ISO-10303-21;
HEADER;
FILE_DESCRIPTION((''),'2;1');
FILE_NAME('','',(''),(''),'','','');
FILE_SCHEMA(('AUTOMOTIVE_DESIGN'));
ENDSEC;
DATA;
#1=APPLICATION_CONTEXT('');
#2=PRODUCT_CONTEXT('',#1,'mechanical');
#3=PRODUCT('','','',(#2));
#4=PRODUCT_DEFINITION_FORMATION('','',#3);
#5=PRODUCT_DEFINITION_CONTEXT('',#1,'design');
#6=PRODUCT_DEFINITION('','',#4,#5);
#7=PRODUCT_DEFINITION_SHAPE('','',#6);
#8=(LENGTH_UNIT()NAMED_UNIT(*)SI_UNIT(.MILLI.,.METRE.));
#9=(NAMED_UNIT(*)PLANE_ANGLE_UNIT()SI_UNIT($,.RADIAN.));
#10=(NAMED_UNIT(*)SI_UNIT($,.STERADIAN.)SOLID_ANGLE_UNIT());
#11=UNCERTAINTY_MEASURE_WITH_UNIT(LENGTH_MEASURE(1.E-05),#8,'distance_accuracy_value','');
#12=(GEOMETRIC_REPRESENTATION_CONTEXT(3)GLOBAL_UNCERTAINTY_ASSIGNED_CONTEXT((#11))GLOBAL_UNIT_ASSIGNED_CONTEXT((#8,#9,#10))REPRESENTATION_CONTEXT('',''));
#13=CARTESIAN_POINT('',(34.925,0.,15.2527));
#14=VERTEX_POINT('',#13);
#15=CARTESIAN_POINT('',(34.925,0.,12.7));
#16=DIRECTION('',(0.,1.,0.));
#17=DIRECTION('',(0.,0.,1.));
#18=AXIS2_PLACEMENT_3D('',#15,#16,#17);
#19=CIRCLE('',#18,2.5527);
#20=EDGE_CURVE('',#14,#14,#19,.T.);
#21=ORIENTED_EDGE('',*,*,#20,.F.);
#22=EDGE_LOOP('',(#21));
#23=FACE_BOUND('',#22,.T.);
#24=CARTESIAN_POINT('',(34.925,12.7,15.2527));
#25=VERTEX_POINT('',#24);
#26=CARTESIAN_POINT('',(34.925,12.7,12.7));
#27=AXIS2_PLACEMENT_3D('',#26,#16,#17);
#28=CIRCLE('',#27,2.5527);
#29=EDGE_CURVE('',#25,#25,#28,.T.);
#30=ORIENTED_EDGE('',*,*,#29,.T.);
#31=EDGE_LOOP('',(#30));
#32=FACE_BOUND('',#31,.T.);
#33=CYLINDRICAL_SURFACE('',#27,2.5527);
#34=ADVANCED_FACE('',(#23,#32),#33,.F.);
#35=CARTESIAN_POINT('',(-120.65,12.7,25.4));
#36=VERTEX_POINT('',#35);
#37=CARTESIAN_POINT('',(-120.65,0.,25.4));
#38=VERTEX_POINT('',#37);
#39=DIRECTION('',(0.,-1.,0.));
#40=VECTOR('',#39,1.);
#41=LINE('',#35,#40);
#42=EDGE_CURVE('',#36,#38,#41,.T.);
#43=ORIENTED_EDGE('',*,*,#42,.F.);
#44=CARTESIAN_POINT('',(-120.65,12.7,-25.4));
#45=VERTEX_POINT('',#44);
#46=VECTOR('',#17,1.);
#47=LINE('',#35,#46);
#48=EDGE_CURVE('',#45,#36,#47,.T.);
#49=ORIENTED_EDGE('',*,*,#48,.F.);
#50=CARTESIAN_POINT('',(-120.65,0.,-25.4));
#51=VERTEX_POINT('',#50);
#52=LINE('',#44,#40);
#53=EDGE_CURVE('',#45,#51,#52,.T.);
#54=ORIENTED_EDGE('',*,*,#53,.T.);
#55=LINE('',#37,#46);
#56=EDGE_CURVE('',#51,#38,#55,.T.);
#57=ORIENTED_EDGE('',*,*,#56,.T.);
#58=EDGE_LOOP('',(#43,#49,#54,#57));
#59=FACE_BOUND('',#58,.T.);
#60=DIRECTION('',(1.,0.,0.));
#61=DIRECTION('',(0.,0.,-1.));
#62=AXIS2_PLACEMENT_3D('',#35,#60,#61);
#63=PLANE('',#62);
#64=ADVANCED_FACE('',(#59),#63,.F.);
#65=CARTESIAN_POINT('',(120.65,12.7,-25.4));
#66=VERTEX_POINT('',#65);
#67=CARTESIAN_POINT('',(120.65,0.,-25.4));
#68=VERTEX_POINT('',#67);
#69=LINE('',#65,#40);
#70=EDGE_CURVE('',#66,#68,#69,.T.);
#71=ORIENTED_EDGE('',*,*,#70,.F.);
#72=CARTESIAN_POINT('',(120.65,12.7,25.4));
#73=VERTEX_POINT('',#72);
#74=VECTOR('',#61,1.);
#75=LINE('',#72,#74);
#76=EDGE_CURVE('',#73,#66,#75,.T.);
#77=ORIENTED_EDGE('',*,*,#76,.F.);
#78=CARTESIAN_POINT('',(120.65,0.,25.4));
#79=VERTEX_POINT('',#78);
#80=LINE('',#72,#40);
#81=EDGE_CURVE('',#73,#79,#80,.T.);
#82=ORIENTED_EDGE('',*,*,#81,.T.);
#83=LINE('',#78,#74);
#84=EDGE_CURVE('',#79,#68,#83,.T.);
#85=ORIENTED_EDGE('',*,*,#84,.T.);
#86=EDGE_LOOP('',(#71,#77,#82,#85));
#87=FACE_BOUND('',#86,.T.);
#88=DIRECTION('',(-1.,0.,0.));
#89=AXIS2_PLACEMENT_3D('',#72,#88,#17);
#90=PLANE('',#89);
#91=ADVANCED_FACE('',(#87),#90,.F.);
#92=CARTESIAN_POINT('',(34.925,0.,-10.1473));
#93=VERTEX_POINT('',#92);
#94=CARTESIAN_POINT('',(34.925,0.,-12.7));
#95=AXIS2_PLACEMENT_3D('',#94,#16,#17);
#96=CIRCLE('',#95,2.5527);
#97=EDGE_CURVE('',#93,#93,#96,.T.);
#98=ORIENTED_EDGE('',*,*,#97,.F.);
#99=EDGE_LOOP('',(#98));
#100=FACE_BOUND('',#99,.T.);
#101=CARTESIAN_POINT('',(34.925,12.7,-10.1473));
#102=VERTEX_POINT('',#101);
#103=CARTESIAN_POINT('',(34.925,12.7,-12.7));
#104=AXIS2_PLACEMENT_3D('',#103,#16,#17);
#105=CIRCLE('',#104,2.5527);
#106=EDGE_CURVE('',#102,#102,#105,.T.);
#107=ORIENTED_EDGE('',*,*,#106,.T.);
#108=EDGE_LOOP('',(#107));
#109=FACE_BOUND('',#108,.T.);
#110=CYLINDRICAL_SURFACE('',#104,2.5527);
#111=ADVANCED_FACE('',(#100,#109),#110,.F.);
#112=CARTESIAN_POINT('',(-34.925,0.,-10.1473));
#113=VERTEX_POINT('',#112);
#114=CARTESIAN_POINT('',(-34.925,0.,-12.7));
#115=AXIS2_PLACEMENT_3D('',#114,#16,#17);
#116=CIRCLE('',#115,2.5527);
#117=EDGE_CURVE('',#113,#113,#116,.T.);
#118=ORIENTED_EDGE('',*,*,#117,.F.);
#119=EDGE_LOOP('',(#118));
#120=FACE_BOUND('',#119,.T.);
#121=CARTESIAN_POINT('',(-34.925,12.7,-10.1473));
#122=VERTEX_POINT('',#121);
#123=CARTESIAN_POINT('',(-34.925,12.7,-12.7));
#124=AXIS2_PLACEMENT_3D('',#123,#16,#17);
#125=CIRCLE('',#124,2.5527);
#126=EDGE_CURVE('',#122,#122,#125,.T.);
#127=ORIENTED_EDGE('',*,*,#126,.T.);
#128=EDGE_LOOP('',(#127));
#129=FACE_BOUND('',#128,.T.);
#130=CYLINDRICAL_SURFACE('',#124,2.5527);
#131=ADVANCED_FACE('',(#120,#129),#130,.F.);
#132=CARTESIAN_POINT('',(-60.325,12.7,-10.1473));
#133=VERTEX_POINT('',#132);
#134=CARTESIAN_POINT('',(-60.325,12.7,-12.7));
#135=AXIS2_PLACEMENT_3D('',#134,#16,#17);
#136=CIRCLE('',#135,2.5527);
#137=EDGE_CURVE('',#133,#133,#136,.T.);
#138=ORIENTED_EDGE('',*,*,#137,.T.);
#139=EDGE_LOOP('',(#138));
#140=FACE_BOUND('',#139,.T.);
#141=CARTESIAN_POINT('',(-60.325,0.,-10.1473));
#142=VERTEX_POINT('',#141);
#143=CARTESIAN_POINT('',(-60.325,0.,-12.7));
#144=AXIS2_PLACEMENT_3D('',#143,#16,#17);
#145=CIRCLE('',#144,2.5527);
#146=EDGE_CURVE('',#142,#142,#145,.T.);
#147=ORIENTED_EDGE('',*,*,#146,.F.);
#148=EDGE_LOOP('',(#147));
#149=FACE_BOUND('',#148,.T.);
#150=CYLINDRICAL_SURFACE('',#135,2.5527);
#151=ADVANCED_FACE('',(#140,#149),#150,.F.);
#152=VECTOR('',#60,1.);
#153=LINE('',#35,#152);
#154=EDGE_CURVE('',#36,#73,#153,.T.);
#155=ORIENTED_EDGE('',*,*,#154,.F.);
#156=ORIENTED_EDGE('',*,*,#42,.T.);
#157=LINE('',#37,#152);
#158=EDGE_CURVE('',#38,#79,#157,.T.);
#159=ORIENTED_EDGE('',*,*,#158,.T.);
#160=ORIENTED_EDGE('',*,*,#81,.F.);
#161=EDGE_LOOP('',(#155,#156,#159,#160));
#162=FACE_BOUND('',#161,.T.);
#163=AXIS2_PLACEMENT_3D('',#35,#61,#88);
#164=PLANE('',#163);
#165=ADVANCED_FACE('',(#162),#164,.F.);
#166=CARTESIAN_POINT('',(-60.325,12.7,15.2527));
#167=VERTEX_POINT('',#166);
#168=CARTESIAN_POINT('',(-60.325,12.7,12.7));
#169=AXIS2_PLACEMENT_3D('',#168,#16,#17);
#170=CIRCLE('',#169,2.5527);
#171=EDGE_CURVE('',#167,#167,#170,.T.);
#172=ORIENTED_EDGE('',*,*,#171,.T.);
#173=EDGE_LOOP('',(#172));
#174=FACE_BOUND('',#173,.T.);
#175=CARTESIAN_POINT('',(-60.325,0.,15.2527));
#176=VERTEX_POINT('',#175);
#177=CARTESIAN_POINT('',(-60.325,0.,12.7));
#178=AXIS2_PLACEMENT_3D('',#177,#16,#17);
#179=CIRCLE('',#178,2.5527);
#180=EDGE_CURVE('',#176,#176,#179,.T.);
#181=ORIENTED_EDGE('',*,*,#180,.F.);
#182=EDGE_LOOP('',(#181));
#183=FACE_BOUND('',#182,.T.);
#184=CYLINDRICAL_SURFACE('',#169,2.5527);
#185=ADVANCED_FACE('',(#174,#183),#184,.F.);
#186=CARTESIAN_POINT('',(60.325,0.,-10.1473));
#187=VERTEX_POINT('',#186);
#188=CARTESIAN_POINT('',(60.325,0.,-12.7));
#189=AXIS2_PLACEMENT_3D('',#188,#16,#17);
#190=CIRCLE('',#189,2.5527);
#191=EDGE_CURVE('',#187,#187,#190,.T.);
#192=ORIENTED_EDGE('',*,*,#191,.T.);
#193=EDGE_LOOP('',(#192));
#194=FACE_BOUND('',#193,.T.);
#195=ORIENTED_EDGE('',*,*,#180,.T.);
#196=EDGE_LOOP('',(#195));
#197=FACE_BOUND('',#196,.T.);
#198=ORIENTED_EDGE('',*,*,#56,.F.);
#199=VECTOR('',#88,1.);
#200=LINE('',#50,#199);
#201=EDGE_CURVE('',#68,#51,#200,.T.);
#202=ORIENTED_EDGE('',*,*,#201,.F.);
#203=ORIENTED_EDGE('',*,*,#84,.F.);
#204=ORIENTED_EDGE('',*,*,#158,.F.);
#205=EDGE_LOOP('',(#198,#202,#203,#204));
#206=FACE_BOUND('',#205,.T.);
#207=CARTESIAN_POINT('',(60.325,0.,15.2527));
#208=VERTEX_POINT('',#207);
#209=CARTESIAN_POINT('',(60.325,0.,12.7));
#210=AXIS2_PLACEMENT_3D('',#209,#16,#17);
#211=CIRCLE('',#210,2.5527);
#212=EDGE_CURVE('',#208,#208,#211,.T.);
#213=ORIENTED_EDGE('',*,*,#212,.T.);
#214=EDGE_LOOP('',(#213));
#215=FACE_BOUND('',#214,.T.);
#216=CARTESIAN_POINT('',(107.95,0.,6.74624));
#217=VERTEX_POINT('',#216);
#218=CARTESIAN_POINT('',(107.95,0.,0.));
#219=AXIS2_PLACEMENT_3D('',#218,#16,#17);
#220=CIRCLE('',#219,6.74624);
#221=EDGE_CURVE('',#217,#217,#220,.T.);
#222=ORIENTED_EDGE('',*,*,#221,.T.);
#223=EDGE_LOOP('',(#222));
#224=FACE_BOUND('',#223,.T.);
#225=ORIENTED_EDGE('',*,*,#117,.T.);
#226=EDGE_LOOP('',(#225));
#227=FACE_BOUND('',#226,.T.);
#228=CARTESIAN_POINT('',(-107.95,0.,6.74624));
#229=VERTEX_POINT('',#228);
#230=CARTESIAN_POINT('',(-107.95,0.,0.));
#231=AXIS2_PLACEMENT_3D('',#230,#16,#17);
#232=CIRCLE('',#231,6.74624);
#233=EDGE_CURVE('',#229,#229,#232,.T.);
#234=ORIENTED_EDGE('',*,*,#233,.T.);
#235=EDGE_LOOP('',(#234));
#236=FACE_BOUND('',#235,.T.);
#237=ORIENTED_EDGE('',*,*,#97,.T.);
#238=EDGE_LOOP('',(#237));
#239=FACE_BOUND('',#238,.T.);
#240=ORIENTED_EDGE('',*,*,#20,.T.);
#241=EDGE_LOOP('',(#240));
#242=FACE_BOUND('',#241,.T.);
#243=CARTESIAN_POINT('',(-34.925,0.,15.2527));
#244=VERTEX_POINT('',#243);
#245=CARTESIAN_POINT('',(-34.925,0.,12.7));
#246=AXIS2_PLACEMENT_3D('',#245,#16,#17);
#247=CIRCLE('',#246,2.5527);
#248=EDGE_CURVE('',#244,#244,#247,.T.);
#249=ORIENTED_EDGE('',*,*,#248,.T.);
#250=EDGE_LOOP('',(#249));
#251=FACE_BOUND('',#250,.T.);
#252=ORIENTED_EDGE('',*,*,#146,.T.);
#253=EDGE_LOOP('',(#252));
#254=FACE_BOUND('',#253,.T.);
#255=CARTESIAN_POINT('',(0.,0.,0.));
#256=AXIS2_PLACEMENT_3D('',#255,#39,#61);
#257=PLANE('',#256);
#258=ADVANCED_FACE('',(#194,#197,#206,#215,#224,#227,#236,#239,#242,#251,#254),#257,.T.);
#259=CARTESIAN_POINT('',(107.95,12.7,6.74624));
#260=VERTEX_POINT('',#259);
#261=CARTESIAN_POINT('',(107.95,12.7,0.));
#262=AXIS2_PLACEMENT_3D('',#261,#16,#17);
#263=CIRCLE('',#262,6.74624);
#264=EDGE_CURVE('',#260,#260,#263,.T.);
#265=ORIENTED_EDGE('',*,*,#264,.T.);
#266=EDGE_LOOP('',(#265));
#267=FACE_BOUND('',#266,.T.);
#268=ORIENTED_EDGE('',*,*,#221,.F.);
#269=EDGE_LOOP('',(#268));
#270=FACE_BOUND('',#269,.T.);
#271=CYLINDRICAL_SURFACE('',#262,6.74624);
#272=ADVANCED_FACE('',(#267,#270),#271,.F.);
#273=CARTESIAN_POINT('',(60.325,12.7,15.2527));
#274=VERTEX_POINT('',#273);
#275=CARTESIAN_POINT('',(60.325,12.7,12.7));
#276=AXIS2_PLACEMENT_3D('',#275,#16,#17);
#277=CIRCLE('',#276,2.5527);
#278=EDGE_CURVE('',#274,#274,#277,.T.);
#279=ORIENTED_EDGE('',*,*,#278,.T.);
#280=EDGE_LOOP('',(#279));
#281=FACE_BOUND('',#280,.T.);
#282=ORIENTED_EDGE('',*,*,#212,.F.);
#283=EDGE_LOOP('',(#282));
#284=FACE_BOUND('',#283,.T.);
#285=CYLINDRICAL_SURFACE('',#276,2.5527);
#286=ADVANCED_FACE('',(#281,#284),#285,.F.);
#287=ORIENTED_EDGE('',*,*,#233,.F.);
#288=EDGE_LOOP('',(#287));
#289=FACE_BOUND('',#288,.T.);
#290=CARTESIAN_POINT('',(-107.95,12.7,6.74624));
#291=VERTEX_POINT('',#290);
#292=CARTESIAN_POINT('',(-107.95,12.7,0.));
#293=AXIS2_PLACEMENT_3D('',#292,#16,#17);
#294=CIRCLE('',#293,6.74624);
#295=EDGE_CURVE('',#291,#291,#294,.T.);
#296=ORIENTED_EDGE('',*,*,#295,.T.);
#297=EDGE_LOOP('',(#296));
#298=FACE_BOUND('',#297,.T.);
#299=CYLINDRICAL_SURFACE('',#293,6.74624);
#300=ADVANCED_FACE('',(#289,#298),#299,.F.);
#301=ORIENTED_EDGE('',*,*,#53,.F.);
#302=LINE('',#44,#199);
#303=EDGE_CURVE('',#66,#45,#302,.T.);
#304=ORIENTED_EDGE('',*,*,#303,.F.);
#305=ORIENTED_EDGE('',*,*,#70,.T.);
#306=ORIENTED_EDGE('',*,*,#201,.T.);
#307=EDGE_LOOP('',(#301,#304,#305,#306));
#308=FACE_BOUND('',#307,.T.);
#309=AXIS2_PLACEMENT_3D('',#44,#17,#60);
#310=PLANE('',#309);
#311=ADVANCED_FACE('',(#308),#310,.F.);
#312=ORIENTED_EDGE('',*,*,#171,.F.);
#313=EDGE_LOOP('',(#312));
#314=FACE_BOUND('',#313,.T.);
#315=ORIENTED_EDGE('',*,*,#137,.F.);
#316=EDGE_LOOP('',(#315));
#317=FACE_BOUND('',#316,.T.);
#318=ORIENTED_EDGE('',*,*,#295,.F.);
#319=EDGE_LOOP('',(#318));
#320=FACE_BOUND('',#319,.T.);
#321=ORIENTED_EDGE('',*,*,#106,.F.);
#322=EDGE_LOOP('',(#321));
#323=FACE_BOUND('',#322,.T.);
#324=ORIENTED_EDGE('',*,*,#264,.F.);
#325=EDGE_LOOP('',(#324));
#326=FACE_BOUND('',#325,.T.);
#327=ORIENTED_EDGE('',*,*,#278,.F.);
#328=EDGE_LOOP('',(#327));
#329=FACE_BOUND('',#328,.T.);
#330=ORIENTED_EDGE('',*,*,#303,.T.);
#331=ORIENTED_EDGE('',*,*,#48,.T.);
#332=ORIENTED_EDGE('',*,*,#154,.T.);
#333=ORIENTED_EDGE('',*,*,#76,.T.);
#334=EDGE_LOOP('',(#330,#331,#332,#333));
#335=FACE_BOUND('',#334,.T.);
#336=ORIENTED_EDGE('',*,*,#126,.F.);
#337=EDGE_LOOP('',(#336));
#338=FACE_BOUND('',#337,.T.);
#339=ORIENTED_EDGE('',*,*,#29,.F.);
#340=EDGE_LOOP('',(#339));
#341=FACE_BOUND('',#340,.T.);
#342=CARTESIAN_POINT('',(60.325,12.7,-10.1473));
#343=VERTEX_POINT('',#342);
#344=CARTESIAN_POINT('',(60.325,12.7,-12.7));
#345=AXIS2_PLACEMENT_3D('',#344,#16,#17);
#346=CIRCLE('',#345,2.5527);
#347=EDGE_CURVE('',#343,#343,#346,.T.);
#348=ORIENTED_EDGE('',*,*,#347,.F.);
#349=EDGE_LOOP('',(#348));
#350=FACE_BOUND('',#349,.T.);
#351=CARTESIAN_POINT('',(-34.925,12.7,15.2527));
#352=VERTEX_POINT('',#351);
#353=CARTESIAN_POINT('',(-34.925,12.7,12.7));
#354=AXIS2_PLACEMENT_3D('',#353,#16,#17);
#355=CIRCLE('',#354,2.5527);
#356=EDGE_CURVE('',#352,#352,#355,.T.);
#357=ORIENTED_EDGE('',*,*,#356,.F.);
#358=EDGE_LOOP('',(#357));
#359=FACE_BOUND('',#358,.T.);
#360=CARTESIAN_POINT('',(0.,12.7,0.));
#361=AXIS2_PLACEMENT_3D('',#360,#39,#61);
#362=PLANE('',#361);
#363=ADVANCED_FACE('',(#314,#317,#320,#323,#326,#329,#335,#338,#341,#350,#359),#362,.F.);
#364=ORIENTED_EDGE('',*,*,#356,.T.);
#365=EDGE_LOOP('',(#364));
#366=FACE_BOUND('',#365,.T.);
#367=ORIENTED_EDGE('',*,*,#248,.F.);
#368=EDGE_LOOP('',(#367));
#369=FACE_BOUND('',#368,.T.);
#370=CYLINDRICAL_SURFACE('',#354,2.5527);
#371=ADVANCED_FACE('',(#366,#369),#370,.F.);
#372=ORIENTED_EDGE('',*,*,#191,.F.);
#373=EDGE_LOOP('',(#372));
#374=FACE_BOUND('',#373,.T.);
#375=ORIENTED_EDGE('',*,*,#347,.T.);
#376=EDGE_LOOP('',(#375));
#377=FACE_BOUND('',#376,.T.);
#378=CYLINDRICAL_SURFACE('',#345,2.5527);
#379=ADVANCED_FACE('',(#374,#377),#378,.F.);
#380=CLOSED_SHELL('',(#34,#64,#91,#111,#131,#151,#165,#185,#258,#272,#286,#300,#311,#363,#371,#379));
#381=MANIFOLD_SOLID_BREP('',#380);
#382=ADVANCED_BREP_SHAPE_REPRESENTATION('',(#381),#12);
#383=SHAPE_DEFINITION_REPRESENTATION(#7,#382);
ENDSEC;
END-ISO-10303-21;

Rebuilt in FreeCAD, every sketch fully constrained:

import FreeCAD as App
import Part
import Sketcher
Q = App.Units.Quantity

doc = App.newDocument("Part")
body = doc.addObject("PartDesign::Body", "Body")

# Sketch on XZ plane
sketch1 = body.newObject("Sketcher::SketchObject", "Sketch")
sketch1.AttachmentSupport = (doc.getObject("XZ_Plane"), [""])
sketch1.MapMode = "FlatFace"
sketch1.addGeometry([
    Part.LineSegment(App.Vector(-121, -25, 0), App.Vector(-121, 25, 0)),
    Part.LineSegment(App.Vector(-121, 25, 0), App.Vector(121, 25, 0)),
    Part.LineSegment(App.Vector(121, 25, 0), App.Vector(121, -25, 0)),
    Part.LineSegment(App.Vector(121, -25, 0), App.Vector(-121, -25, 0)),
], False)
sketch1.addConstraint([
    Sketcher.Constraint("Coincident", 0, 2, 1, 1),
    Sketcher.Constraint("Coincident", 1, 2, 2, 1),
    Sketcher.Constraint("Coincident", 2, 2, 3, 1),
    Sketcher.Constraint("Coincident", 3, 2, 0, 1),
    Sketcher.Constraint("Vertical", 0),
    Sketcher.Constraint("Horizontal", 1),
    Sketcher.Constraint("Vertical", 2),
    Sketcher.Constraint("Horizontal", 3),
    Sketcher.Constraint("Symmetric", 0, 2, 2, 2, -1, 1),
    Sketcher.Constraint("DistanceY", 0, 1, 0, 2, Q("2 in")),
    Sketcher.Constraint("DistanceX", 1, 1, 1, 2, Q("9.5 in")),
])
pad1 = body.newObject("PartDesign::Pad", "Pad")
pad1.Profile = sketch1
pad1.Length = Q("0.5 in")
pad1.Reversed = True

# Sketch on XZ plane
sketch2 = body.newObject("Sketcher::SketchObject", "Sketch001")
sketch2.AttachmentSupport = (doc.getObject("XZ_Plane"), [""])
sketch2.MapMode = "FlatFace"
sketch2.AttachmentOffset = App.Placement(App.Vector(0, 0, -0.5 * 25.4), App.Rotation())
sketch2.addGeometry([
    Part.Circle(App.Vector(60.3, 12.7, 0), App.Vector(0, 0, 1), 2.6),  # 0
    Part.Circle(App.Vector(-34.9, 12.7, 0), App.Vector(0, 0, 1), 2.6),  # 1
    Part.Circle(App.Vector(-60.3, 12.7, 0), App.Vector(0, 0, 1), 2.6),  # 2
    Part.Circle(App.Vector(-60.3, -12.7, 0), App.Vector(0, 0, 1), 2.6),  # 3
    Part.Circle(App.Vector(-34.9, -12.7, 0), App.Vector(0, 0, 1), 2.6),  # 4
    Part.Circle(App.Vector(34.9, -12.7, 0), App.Vector(0, 0, 1), 2.6),  # 5
    Part.Circle(App.Vector(60.3, -12.7, 0), App.Vector(0, 0, 1), 2.6),  # 6
    Part.Circle(App.Vector(34.9, 12.7, 0), App.Vector(0, 0, 1), 2.6),  # 7
], False)
sketch2.addConstraint([
    Sketcher.Constraint("Equal", 0, 1),
    Sketcher.Constraint("Equal", 1, 2),
    Sketcher.Constraint("Equal", 2, 3),
    Sketcher.Constraint("Equal", 3, 4),
    Sketcher.Constraint("Equal", 4, 5),
    Sketcher.Constraint("Equal", 5, 6),
    Sketcher.Constraint("Equal", 6, 7),
    Sketcher.Constraint("Symmetric", 0, 3, 3, 3, -1, 1),
    Sketcher.Constraint("Symmetric", 1, 3, 5, 3, -1, 1),
    Sketcher.Constraint("Symmetric", 2, 3, 6, 3, -1, 1),
    Sketcher.Constraint("Symmetric", 4, 3, 7, 3, -1, 1),
    Sketcher.Constraint("Symmetric", 0, 3, 2, 3, -2),
    Sketcher.Constraint("Symmetric", 4, 3, 5, 3, -2),
    Sketcher.Constraint("Horizontal", 0, 3, 1, 3),
    Sketcher.Constraint("Diameter", 0, Q("0.201 in")),
    Sketcher.Constraint("DistanceX", 2, 3, 1, 3, Q("1 in")),
    Sketcher.Constraint("DistanceY", 3, 3, 2, 3, Q("1 in")),
    Sketcher.Constraint("DistanceX", 1, 3, 0, 3, Q("3.75 in")),
])
doc.recompute()
hole = body.newObject("PartDesign::Hole", "Hole")
hole.Profile = sketch2
hole.ThreadType = "None"
hole.Diameter = Q("0.201 in")
hole.DepthType = "ThroughAll"
hole.Reversed = True

# Sketch on XZ plane
sketch3 = body.newObject("Sketcher::SketchObject", "Sketch002")
sketch3.AttachmentSupport = (doc.getObject("XZ_Plane"), [""])
sketch3.MapMode = "FlatFace"
sketch3.AttachmentOffset = App.Placement(App.Vector(0, 0, -0.5 * 25.4), App.Rotation())
sketch3.addGeometry([
    Part.Circle(App.Vector(-108, 0, 0), App.Vector(0, 0, 1), 7),
    Part.Circle(App.Vector(108, 0, 0), App.Vector(0, 0, 1), 7),
], False)
sketch3.addConstraint([
    Sketcher.Constraint("Equal", 0, 1),
    Sketcher.Constraint("Symmetric", 0, 3, 1, 3, -1, 1),
    Sketcher.Constraint("PointOnObject", 0, 3, -1),
    Sketcher.Constraint("Diameter", 0, Q("0.5312 in")),
    Sketcher.Constraint("DistanceX", 0, 3, 1, 3, Q("8.5 in")),
])
doc.recompute()
hole2 = body.newObject("PartDesign::Hole", "Hole001")
hole2.Profile = sketch3
hole2.ThreadType = "None"
hole2.Diameter = Q("0.5312 in")
hole2.DepthType = "ThroughAll"
hole2.Reversed = True

doc.recompute()
